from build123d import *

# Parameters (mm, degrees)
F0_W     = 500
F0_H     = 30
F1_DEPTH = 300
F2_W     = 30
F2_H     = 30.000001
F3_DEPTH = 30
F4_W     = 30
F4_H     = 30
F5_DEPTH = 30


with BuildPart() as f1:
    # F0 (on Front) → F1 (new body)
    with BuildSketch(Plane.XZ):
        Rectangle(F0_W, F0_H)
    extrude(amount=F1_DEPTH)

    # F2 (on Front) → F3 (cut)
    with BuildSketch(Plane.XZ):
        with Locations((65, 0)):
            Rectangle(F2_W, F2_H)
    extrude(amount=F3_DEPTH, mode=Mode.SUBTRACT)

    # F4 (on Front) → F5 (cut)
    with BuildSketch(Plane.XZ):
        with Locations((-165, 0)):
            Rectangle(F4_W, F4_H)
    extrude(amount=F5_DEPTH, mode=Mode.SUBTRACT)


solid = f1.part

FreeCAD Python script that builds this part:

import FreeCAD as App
import Part
import Sketcher

V = App.Vector

doc = App.newDocument("Part")
body = doc.addObject("PartDesign::Body", "Body")

sketch1 = doc.addObject("Sketcher::SketchObject", "Sketch")
body.addObject(sketch1)
sketch1.AttachmentSupport = (doc.XZ_Plane, [""])
sketch1.MapMode = "FlatFace"
sketch1.addGeometry([
    Part.LineSegment(V(-250, 15, 0), V(-250, -15, 0)),
    Part.LineSegment(V(-250, -15, 0), V(250, -15, 0)),
    Part.LineSegment(V(250, -15, 0), V(250, 15, 0)),
    Part.LineSegment(V(250, 15, 0), V(-250, 15, 0)),
], False)
sketch1.addConstraint([
    Sketcher.Constraint("Coincident", 0, 2, 1, 1),
    Sketcher.Constraint("Coincident", 1, 2, 2, 1),
    Sketcher.Constraint("Coincident", 2, 2, 3, 1),
    Sketcher.Constraint("Coincident", 3, 2, 0, 1),
    Sketcher.Constraint("Vertical", 0),
    Sketcher.Constraint("Horizontal", 1),
    Sketcher.Constraint("Vertical", 2),
    Sketcher.Constraint("Horizontal", 3),
    Sketcher.Constraint("Symmetric", 0, 2, 2, 2, -1, 1),
    Sketcher.Constraint("DistanceX", 1, 1, 1, 2, 500.0),
    Sketcher.Constraint("DistanceY", 0, 2, 0, 1, 30.0),
])
pad1 = doc.addObject("PartDesign::Pad", "Pad")
body.addObject(pad1)
pad1.Profile = sketch1
pad1.Length = 300

sketch2 = doc.addObject("Sketcher::SketchObject", "Sketch001")
body.addObject(sketch2)
sketch2.AttachmentSupport = (doc.XZ_Plane, [""])
sketch2.MapMode = "FlatFace"
sketch2.addGeometry([
    Part.LineSegment(V(50, 15, 0), V(50, -15, 0)),
    Part.LineSegment(V(50, -15, 0), V(80, -15, 0)),
    Part.LineSegment(V(80, -15, 0), V(80, 15, 0)),
    Part.LineSegment(V(80, 15, 0), V(50, 15, 0)),
], False)
sketch2.addConstraint([
    Sketcher.Constraint("Coincident", 0, 2, 1, 1),
    Sketcher.Constraint("Coincident", 1, 2, 2, 1),
    Sketcher.Constraint("Coincident", 2, 2, 3, 1),
    Sketcher.Constraint("Coincident", 3, 2, 0, 1),
    Sketcher.Constraint("Vertical", 0),
    Sketcher.Constraint("Horizontal", 1),
    Sketcher.Constraint("Vertical", 2),
    Sketcher.Constraint("Horizontal", 3),
    Sketcher.Constraint("Equal", 3, 0),
    Sketcher.Constraint("DistanceX", 1, 1, 1, 2, 30.0),
    Sketcher.Constraint("DistanceX", -1, 1, 0, 2, 50.0),
    Sketcher.Constraint("DistanceY", 0, 2, -1, 1, 15.000001),
])
pocket1 = doc.addObject("PartDesign::Pocket", "Pocket")
body.addObject(pocket1)
pocket1.Profile = sketch2
pocket1.Length = 30
pocket1.Reversed = True

sketch3 = doc.addObject("Sketcher::SketchObject", "Sketch002")
body.addObject(sketch3)
sketch3.AttachmentSupport = (doc.XZ_Plane, [""])
sketch3.MapMode = "FlatFace"
sketch3.addGeometry([
    Part.LineSegment(V(-180, 15, 0), V(-180, -15, 0)),
    Part.LineSegment(V(-180, -15, 0), V(-150, -15, 0)),
    Part.LineSegment(V(-150, -15, 0), V(-150, 15, 0)),
    Part.LineSegment(V(-150, 15, 0), V(-180, 15, 0)),
], False)
sketch3.addConstraint([
    Sketcher.Constraint("Coincident", 0, 2, 1, 1),
    Sketcher.Constraint("Coincident", 1, 2, 2, 1),
    Sketcher.Constraint("Coincident", 2, 2, 3, 1),
    Sketcher.Constraint("Coincident", 3, 2, 0, 1),
    Sketcher.Constraint("Vertical", 0),
    Sketcher.Constraint("Horizontal", 1),
    Sketcher.Constraint("Vertical", 2),
    Sketcher.Constraint("Horizontal", 3),
    Sketcher.Constraint("Equal", 3, 0),
    Sketcher.Constraint("DistanceX", 1, 1, 1, 2, 30.0),
    Sketcher.Constraint("DistanceX", 0, 2, -1, 1, 180.0),
    Sketcher.Constraint("DistanceY", 0, 2, -1, 1, 15.0),
])
pocket2 = doc.addObject("PartDesign::Pocket", "Pocket001")
body.addObject(pocket2)
pocket2.Profile = sketch3
pocket2.Length = 30
pocket2.Reversed = True

doc.recompute()
